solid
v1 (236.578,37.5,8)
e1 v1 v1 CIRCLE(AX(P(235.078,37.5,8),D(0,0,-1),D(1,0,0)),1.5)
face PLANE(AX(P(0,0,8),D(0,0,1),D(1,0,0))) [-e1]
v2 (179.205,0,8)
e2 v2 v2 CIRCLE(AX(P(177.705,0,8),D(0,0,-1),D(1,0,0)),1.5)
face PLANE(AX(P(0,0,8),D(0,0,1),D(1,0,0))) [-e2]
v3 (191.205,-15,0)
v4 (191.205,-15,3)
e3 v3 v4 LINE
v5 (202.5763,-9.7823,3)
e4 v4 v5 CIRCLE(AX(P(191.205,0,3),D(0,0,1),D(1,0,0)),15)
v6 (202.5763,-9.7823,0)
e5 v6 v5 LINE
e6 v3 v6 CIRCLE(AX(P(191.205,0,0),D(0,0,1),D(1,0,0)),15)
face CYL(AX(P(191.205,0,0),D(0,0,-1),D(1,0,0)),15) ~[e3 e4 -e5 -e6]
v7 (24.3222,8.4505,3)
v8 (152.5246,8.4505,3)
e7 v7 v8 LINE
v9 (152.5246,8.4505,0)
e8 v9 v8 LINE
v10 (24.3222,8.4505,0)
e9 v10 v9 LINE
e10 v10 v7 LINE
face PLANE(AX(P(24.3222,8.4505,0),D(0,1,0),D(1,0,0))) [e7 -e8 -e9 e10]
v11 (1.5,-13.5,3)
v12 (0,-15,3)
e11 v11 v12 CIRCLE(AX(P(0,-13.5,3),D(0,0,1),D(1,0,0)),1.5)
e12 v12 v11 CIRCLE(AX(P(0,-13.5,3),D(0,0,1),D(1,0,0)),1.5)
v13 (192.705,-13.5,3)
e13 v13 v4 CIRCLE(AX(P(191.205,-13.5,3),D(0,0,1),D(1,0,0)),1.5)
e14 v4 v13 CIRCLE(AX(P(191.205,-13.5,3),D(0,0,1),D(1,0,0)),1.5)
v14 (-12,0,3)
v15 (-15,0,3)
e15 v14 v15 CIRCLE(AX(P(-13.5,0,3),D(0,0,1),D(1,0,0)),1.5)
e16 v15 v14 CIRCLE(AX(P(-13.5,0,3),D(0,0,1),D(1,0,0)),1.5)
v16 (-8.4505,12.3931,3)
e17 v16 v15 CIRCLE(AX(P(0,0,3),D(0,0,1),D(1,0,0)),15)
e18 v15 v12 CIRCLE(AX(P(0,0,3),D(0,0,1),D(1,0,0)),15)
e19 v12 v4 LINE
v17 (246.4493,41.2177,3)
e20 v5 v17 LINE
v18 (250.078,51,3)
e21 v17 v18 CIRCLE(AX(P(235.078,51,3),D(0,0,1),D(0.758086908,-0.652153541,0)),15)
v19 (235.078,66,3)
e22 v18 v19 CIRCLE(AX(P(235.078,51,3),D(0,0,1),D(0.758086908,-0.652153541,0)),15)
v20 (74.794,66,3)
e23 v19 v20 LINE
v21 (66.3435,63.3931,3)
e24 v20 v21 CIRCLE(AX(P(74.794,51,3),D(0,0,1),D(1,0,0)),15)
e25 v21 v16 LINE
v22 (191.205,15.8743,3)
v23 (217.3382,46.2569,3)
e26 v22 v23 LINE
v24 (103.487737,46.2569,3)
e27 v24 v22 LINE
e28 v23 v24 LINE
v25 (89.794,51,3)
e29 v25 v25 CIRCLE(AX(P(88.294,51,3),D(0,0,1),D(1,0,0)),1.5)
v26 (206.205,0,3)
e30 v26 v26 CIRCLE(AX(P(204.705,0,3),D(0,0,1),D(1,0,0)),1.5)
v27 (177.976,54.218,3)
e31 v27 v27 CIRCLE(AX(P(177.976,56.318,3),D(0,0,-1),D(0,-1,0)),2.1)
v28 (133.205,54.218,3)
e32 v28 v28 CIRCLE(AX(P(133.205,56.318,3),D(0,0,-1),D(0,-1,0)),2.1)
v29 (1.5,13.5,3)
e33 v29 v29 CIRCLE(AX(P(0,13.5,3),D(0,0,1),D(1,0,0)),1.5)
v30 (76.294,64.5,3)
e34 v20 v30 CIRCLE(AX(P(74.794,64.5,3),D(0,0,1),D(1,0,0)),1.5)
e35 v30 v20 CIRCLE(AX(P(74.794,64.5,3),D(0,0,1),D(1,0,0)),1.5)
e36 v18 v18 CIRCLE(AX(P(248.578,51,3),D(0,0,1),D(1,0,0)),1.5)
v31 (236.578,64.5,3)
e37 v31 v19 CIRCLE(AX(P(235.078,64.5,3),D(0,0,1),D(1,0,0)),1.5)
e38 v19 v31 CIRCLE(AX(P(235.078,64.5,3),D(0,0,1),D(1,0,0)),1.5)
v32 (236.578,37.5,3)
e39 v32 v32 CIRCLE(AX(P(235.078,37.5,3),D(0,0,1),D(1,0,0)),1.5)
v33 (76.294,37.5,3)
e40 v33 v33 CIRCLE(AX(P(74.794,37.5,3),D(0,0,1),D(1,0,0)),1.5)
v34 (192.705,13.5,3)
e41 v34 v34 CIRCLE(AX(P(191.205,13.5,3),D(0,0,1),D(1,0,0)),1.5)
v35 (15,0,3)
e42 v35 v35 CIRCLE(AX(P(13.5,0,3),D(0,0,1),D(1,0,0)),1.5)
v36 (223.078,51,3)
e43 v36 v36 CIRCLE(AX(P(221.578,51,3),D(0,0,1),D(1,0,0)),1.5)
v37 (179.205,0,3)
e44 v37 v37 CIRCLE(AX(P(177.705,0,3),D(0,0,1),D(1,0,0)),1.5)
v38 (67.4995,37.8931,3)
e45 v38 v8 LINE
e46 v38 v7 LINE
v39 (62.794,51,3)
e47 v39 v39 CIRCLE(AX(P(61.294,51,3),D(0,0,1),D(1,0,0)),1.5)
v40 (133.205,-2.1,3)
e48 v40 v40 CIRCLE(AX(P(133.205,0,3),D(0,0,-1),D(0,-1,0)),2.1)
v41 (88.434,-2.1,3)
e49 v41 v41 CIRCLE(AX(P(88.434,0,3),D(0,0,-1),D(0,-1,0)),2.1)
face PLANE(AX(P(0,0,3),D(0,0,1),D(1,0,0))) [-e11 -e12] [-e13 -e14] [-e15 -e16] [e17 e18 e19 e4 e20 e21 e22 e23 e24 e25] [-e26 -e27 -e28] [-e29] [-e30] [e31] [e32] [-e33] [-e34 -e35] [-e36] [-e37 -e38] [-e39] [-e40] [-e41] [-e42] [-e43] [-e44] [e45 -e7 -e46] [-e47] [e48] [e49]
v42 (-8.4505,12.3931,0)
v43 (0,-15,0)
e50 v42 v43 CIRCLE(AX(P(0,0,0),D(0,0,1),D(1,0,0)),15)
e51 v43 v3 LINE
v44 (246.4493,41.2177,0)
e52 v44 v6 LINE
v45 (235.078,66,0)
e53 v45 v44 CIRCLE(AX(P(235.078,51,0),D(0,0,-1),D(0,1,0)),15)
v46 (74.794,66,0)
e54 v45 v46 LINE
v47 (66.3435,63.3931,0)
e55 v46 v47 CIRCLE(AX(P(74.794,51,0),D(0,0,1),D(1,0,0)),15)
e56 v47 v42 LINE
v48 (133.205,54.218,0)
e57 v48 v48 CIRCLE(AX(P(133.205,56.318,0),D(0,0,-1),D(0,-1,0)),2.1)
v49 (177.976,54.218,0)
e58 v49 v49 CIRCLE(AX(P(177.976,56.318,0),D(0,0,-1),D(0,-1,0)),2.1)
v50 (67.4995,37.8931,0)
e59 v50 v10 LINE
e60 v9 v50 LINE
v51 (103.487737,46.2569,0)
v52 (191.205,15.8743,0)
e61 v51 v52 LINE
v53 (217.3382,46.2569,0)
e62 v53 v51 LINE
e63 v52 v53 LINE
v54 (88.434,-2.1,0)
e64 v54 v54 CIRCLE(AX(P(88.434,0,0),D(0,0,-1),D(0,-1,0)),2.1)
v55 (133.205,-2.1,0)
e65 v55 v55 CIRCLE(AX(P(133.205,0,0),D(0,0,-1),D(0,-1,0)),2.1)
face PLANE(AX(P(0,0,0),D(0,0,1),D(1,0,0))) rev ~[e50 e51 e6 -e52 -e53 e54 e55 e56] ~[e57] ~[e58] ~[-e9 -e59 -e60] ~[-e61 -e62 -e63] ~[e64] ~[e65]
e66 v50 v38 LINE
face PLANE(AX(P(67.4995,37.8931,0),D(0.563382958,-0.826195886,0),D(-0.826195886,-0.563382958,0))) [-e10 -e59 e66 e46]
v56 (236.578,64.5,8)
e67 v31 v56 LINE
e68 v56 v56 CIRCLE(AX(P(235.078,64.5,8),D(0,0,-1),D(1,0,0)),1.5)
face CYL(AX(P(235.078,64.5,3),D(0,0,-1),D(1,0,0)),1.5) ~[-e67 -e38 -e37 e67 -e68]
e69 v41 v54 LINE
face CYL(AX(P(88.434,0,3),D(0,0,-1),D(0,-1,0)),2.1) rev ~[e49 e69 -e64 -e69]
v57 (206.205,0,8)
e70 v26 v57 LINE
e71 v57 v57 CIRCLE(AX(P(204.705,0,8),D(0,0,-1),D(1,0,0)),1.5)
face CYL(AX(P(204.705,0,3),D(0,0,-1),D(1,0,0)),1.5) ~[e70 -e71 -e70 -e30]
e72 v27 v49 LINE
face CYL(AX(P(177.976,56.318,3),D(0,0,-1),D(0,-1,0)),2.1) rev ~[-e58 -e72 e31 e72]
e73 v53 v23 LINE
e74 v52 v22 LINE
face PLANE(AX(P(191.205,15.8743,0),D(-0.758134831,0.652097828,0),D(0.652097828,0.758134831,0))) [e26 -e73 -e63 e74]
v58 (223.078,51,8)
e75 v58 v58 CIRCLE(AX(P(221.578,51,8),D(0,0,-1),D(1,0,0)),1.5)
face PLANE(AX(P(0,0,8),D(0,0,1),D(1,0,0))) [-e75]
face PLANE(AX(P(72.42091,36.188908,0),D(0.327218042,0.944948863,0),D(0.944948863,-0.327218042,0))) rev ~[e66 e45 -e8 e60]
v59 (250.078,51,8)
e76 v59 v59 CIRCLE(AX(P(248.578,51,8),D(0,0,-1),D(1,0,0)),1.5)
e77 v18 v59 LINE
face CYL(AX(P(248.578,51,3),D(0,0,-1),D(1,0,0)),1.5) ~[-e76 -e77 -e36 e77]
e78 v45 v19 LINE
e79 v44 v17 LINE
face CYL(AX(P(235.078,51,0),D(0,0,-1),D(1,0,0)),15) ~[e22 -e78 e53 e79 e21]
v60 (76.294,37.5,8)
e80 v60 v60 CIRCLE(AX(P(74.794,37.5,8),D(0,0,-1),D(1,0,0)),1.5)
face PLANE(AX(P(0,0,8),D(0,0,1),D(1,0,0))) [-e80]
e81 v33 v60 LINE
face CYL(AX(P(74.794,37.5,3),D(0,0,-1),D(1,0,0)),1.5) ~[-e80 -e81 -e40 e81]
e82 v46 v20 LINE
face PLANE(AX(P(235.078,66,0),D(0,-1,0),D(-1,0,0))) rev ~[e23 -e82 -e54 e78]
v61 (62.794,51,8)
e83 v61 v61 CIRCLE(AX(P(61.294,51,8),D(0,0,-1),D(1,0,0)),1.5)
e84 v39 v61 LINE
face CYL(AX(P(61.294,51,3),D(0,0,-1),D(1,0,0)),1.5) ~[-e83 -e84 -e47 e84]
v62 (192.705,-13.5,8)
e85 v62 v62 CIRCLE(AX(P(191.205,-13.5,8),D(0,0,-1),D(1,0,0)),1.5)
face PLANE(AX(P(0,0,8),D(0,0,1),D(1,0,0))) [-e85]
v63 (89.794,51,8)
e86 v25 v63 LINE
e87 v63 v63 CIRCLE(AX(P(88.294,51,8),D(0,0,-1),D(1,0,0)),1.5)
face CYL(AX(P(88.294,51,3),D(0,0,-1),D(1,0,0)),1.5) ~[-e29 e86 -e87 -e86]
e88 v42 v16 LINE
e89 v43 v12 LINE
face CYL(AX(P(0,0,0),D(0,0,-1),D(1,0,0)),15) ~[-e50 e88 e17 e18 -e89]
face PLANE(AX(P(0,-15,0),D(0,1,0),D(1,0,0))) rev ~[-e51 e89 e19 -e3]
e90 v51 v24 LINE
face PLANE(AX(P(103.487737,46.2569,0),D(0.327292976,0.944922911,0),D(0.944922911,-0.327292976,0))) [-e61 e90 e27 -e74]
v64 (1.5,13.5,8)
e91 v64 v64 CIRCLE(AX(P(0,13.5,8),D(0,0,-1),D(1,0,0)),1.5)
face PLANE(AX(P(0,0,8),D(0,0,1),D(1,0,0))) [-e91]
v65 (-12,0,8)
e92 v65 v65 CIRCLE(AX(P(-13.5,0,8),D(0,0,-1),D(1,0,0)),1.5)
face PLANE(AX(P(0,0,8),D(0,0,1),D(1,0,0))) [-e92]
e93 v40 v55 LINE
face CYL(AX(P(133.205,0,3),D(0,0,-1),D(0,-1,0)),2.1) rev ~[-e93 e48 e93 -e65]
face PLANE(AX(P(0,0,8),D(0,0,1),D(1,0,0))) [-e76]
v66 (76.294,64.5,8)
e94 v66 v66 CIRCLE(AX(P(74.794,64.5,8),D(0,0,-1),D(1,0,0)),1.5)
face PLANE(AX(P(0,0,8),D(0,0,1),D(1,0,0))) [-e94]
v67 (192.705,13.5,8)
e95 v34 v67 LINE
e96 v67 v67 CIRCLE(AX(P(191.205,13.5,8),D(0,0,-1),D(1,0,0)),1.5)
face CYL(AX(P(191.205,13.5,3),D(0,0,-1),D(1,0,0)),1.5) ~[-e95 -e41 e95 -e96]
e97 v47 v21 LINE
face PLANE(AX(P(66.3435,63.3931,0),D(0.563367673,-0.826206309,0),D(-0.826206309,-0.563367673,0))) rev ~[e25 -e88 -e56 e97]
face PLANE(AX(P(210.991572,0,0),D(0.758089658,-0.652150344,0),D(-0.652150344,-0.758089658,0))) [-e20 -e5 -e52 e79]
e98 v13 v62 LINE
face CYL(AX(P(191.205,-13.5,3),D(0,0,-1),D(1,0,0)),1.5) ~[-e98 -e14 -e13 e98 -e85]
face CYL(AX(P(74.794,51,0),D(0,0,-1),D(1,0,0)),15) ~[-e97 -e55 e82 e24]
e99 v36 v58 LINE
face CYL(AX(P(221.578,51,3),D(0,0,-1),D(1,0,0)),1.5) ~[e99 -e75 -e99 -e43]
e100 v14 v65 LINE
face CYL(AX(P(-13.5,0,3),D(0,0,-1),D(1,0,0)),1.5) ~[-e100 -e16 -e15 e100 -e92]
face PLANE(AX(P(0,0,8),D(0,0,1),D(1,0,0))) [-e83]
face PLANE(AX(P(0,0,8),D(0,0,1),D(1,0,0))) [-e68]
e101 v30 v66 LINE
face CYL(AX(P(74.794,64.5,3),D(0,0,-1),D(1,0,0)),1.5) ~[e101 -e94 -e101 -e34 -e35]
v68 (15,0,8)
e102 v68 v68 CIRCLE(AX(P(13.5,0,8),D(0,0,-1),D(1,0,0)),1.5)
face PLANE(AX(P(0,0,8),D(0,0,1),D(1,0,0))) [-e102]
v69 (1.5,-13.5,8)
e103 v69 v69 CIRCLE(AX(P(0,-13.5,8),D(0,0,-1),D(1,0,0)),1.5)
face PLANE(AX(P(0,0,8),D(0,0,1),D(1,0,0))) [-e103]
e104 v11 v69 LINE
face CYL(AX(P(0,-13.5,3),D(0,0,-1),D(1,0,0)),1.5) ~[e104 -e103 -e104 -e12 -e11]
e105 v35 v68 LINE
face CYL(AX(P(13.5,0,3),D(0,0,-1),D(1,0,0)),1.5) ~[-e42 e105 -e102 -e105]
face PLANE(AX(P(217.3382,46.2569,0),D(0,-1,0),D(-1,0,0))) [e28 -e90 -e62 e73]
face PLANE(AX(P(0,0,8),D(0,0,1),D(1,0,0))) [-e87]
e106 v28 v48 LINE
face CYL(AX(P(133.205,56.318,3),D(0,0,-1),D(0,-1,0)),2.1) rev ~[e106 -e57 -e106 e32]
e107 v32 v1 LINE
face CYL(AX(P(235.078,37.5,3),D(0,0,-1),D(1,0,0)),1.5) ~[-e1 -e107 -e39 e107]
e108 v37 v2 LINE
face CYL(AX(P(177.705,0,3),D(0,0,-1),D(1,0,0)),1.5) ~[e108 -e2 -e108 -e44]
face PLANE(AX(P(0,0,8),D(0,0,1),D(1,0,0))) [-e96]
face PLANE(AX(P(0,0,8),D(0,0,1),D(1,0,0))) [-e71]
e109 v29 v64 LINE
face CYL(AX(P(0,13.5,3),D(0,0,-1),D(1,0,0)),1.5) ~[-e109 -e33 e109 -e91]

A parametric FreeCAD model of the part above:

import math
import FreeCAD as App
import Part
import Sketcher
from FreeCAD import Vector

doc = App.newDocument("Part")
body = doc.addObject("PartDesign::Body", "Body")

# Sketch on XY plane
sketch1 = body.newObject("Sketcher::SketchObject", "Sketch")
sketch1.AttachmentSupport = (doc.getObject("XY_Plane"), [""])
sketch1.MapMode = "FlatFace"
sketch1.addGeometry([
    Part.ArcOfCircle(Part.Circle(Vector(0, 0, 0), Vector(0, 0, 1), 15), math.radians(124.288957), math.radians(270)),  # 0
    Part.LineSegment(Vector(0, -15, 0), Vector(191.205, -15, 0)),  # 1
    Part.ArcOfCircle(Part.Circle(Vector(191.205, 0, 0), Vector(0, 0, 1), 15), math.radians(-90), math.radians(-40.704167)),  # 2
    Part.LineSegment(Vector(202.5763, -9.7823, 0), Vector(246.4493, 41.2177, 0)),  # 3
    Part.ArcOfCircle(Part.Circle(Vector(235.078, 51, 0), Vector(0, 0, 1), 15), math.radians(-40.704167), math.radians(90)),  # 4
    Part.LineSegment(Vector(235.078, 66, 0), Vector(74.794, 66, 0)),  # 5
    Part.ArcOfCircle(Part.Circle(Vector(74.794, 51, 0), Vector(0, 0, 1), 15), math.radians(90), math.radians(124.288957)),  # 6
    Part.LineSegment(Vector(66.3435, 63.3931, 0), Vector(-8.4505, 12.3931, 0)),  # 7
    Part.LineSegment(Vector(152.5246, 8.4505, 0), Vector(24.3222, 8.4505, 0)),  # 8
    Part.LineSegment(Vector(24.3222, 8.4505, 0), Vector(67.4995, 37.8931, 0)),  # 9
    Part.LineSegment(Vector(67.4995, 37.8931, 0), Vector(152.5246, 8.4505, 0)),  # 10
    Part.LineSegment(Vector(191.20499, 15.874272, 0), Vector(103.487737, 46.2569, 0)),  # 11
    Part.LineSegment(Vector(103.487737, 46.2569, 0), Vector(217.3382, 46.2569, 0)),  # 12
    Part.LineSegment(Vector(217.338153, 46.25694, 0), Vector(191.205, 15.8743, 0)),  # 13
], False)
sketch1.addConstraint([
    Sketcher.Constraint("Coincident", 0, 2, 1, 1),
    Sketcher.Constraint("Coincident", 1, 2, 2, 1),
    Sketcher.Constraint("Coincident", 2, 2, 3, 1),
    Sketcher.Constraint("Coincident", 3, 2, 4, 1),
    Sketcher.Constraint("Coincident", 4, 2, 5, 1),
    Sketcher.Constraint("Coincident", 5, 2, 6, 1),
    Sketcher.Constraint("Coincident", 6, 2, 7, 1),
    Sketcher.Constraint("Coincident", 7, 2, 0, 1),
    Sketcher.Constraint("Coincident", 8, 2, 9, 1),
    Sketcher.Constraint("Coincident", 9, 2, 10, 1),
    Sketcher.Constraint("Coincident", 10, 2, 8, 1),
    Sketcher.Constraint("Coincident", 11, 2, 12, 1),
    Sketcher.Constraint("Coincident", 12, 2, 13, 1),
    Sketcher.Constraint("Coincident", 13, 2, 11, 1),
    Sketcher.Constraint("Horizontal", 1),
    Sketcher.Constraint("Horizontal", 5),
    Sketcher.Constraint("Horizontal", 8),
    Sketcher.Constraint("Horizontal", 12),
    Sketcher.Constraint("Coincident", 0, 3, -1, 1),
    Sketcher.Constraint("PointOnObject", 2, 3, -1),
    Sketcher.Constraint("PointOnObject", 0, 2, -2),
    Sketcher.Constraint("Radius", 0, 15.0),
    Sketcher.Constraint("Radius", 4, 15.0),
    Sketcher.Constraint("Radius", 6, 15.0),
    Sketcher.Constraint("DistanceY", -1, 1, 4, 3, 51.0),
    Sketcher.Constraint("DistanceY", 2, 2, 3, 2, 51.0),
    Sketcher.Constraint("DistanceY", 7, 2, 6, 2, 51.0),
    Sketcher.Constraint("DistanceX", 1, 1, 1, 2, 191.205),
    Sketcher.Constraint("DistanceX", 5, 2, 5, 1, 160.284),
    Sketcher.Constraint("DistanceX", -1, 1, 2, 3, 191.205),
    Sketcher.Constraint("DistanceX", -1, 1, 13, 2, 191.205),
    Sketcher.Constraint("DistanceX", 2, 3, 4, 3, 43.873),
    Sketcher.Constraint("DistanceX", 6, 3, 4, 3, 160.284),
    Sketcher.Constraint("DistanceX", 2, 3, 4, 2, 43.873),
    Sketcher.Constraint("DistanceY", 9, 2, 6, 2, 25.5),
    Sketcher.Constraint("Distance", 11, 92.83),
    Sketcher.Constraint("DistanceX", 8, 2, 8, 1, 128.2024),
    Sketcher.Constraint("DistanceX", 12, 1, 12, 2, 113.8505),
    Sketcher.Constraint("DistanceY", -1, 1, 6, 2, 63.393),
    Sketcher.Constraint("DistanceY", -1, 1, 11, 2, 46.257),
    Sketcher.Constraint("DistanceX", 6, 2, 9, 2, 1.156),
    Sketcher.Constraint("DistanceX", 9, 2, 10, 2, 85.025),
    Sketcher.Constraint("DistanceX", 12, 2, 3, 2, 29.111),
    Sketcher.Constraint("Distance", 9, 52.2604),
    Sketcher.Constraint("Distance", 13, 40.0755),
])
pad1 = body.newObject("PartDesign::Pad", "Pad")
pad1.Profile = sketch1
pad1.Length = 3

# Sketch on XY plane
sketch2 = body.newObject("Sketcher::SketchObject", "Sketch001")
sketch2.AttachmentSupport = (doc.getObject("XY_Plane"), [""])
sketch2.MapMode = "FlatFace"
sketch2.AttachmentOffset = App.Placement(Vector(0, 0, 3), App.Rotation())
sketch2.addGeometry([
    Part.Circle(Vector(-13.5, 0, 0), Vector(0, 0, 1), 1.5),  # 0
    Part.Circle(Vector(0, 13.5, 0), Vector(0, 0, 1), 1.5),  # 1
    Part.Circle(Vector(0, -13.5, 0), Vector(0, 0, 1), 1.5),  # 2
    Part.Circle(Vector(13.5, 0, 0), Vector(0, 0, 1), 1.5),  # 3
    Part.Circle(Vector(248.6, 51, 0), Vector(0, 0, 1), 1.5),  # 4
    Part.Circle(Vector(235.1, 64.5, 0), Vector(0, 0, 1), 1.5),  # 5
    Part.Circle(Vector(235.1, 37.5, 0), Vector(0, 0, 1), 1.5),  # 6
    Part.Circle(Vector(221.6, 51, 0), Vector(0, 0, 1), 1.5),  # 7
    Part.Circle(Vector(204.7, 0, 0), Vector(0, 0, 1), 1.5),  # 8
    Part.Circle(Vector(191.2, 13.5, 0), Vector(0, 0, 1), 1.5),  # 9
    Part.Circle(Vector(191.2, -13.5, 0), Vector(0, 0, 1), 1.5),  # 10
    Part.Circle(Vector(177.7, 0, 0), Vector(0, 0, 1), 1.5),  # 11
    Part.Circle(Vector(88.3, 51, 0), Vector(0, 0, 1), 1.5),  # 12
    Part.Circle(Vector(74.8, 64.5, 0), Vector(0, 0, 1), 1.5),  # 13
    Part.Circle(Vector(74.8, 37.5, 0), Vector(0, 0, 1), 1.5),  # 14
    Part.Circle(Vector(61.3, 51, 0), Vector(0, 0, 1), 1.5),  # 15
], False)
sketch2.addConstraint([
    Sketcher.Constraint("Equal", 0, 1),
    Sketcher.Constraint("Equal", 1, 2),
    Sketcher.Constraint("Equal", 2, 3),
    Sketcher.Constraint("Equal", 3, 4),
    Sketcher.Constraint("Equal", 4, 5),
    Sketcher.Constraint("Equal", 5, 6),
    Sketcher.Constraint("Equal", 6, 7),
    Sketcher.Constraint("Equal", 7, 8),
    Sketcher.Constraint("Equal", 8, 9),
    Sketcher.Constraint("Equal", 9, 10),
    Sketcher.Constraint("Equal", 10, 11),
    Sketcher.Constraint("Equal", 11, 12),
    Sketcher.Constraint("Equal", 12, 13),
    Sketcher.Constraint("Equal", 13, 14),
    Sketcher.Constraint("Equal", 14, 15),
    Sketcher.Constraint("Symmetric", 1, 3, 2, 3, -1, 1),
    Sketcher.Constraint("Symmetric", 0, 3, 3, 3, -1, 1),
    Sketcher.Constraint("Symmetric", 9, 3, 10, 3, -1),
    Sketcher.Constraint("PointOnObject", 0, 3, -1),
    Sketcher.Constraint("PointOnObject", 1, 3, -2),
    Sketcher.Constraint("PointOnObject", 8, 3, -1),
    Sketcher.Constraint("PointOnObject", 11, 3, -1),
    Sketcher.Constraint("Horizontal", 4, 3, 7, 3),
    Sketcher.Constraint("Horizontal", 1, 3, 9, 3),
    Sketcher.Constraint("Horizontal", 7, 3, 12, 3),
    Sketcher.Constraint("Horizontal", 5, 3, 13, 3),
    Sketcher.Constraint("Horizontal", 6, 3, 14, 3),
    Sketcher.Constraint("Horizontal", 12, 3, 15, 3),
    Sketcher.Constraint("Vertical", 5, 3, 6, 3),
    Sketcher.Constraint("Vertical", 13, 3, 14, 3),
    Sketcher.Constraint("Diameter", 0, 3.0),
    Sketcher.Constraint("DistanceY", 2, 3, 1, 3, 27.0),
    Sketcher.Constraint("DistanceX", 0, 3, 3, 3, 27.0),
    Sketcher.Constraint("DistanceY", 6, 3, 5, 3, 27.0),
    Sketcher.Constraint("DistanceX", 7, 3, 4, 3, 27.0),
    Sketcher.Constraint("DistanceX", 11, 3, 8, 3, 27.0),
    Sketcher.Constraint("DistanceX", 15, 3, 12, 3, 27.0),
    Sketcher.Constraint("DistanceY", -1, 1, 4, 3, 51.0),
    Sketcher.Constraint("DistanceY", 1, 3, 5, 3, 51.0),
    Sketcher.Constraint("DistanceX", 5, 3, 4, 3, 13.5),
    Sketcher.Constraint("DistanceX", 9, 3, 8, 3, 13.5),
    Sketcher.Constraint("DistanceX", 13, 3, 12, 3, 13.5),
    Sketcher.Constraint("DistanceX", -1, 1, 4, 3, 248.578),
    Sketcher.Constraint("DistanceX", -1, 1, 8, 3, 204.705),
    Sketcher.Constraint("DistanceX", -1, 1, 12, 3, 88.294),
])
pad2 = body.newObject("PartDesign::Pad", "Pad001")
pad2.Profile = sketch2
pad2.Length = 5

# Sketch on XY plane
sketch3 = body.newObject("Sketcher::SketchObject", "Sketch002")
sketch3.AttachmentSupport = (doc.getObject("XY_Plane"), [""])
sketch3.MapMode = "FlatFace"
sketch3.AttachmentOffset = App.Placement(Vector(0, 0, 3), App.Rotation())
sketch3.addGeometry([
    Part.Circle(Vector(88.4, 0, 0), Vector(0, 0, 1), 2.1),
    Part.Circle(Vector(133.2, 0, 0), Vector(0, 0, 1), 2.1),
    Part.Circle(Vector(133.2, 56.3, 0), Vector(0, 0, 1), 2.1),
    Part.Circle(Vector(178, 56.3, 0), Vector(0, 0, 1), 2.1),
], False)
sketch3.addConstraint([
    Sketcher.Constraint("Equal", 0, 1),
    Sketcher.Constraint("Equal", 1, 2),
    Sketcher.Constraint("Equal", 2, 3),
    Sketcher.Constraint("PointOnObject", 0, 3, -1),
    Sketcher.Constraint("PointOnObject", 1, 3, -1),
    Sketcher.Constraint("Horizontal", 2, 3, 3, 3),
    Sketcher.Constraint("Vertical", 1, 3, 2, 3),
    Sketcher.Constraint("Diameter", 0, 4.2),
    Sketcher.Constraint("DistanceX", -1, 1, 0, 3, 88.434),
    Sketcher.Constraint("DistanceX", -1, 1, 1, 3, 133.205),
    Sketcher.Constraint("DistanceY", -1, 1, 2, 3, 56.318),
    Sketcher.Constraint("DistanceX", -1, 1, 3, 3, 177.976),
])
doc.recompute()
hole = body.newObject("PartDesign::Hole", "Hole")
hole.Profile = sketch3
hole.ThreadType = "None"
hole.Diameter = 4.2
hole.DepthType = "Dimension"
hole.Depth = 5
hole.DrillPoint = "Flat"

doc.recompute()
